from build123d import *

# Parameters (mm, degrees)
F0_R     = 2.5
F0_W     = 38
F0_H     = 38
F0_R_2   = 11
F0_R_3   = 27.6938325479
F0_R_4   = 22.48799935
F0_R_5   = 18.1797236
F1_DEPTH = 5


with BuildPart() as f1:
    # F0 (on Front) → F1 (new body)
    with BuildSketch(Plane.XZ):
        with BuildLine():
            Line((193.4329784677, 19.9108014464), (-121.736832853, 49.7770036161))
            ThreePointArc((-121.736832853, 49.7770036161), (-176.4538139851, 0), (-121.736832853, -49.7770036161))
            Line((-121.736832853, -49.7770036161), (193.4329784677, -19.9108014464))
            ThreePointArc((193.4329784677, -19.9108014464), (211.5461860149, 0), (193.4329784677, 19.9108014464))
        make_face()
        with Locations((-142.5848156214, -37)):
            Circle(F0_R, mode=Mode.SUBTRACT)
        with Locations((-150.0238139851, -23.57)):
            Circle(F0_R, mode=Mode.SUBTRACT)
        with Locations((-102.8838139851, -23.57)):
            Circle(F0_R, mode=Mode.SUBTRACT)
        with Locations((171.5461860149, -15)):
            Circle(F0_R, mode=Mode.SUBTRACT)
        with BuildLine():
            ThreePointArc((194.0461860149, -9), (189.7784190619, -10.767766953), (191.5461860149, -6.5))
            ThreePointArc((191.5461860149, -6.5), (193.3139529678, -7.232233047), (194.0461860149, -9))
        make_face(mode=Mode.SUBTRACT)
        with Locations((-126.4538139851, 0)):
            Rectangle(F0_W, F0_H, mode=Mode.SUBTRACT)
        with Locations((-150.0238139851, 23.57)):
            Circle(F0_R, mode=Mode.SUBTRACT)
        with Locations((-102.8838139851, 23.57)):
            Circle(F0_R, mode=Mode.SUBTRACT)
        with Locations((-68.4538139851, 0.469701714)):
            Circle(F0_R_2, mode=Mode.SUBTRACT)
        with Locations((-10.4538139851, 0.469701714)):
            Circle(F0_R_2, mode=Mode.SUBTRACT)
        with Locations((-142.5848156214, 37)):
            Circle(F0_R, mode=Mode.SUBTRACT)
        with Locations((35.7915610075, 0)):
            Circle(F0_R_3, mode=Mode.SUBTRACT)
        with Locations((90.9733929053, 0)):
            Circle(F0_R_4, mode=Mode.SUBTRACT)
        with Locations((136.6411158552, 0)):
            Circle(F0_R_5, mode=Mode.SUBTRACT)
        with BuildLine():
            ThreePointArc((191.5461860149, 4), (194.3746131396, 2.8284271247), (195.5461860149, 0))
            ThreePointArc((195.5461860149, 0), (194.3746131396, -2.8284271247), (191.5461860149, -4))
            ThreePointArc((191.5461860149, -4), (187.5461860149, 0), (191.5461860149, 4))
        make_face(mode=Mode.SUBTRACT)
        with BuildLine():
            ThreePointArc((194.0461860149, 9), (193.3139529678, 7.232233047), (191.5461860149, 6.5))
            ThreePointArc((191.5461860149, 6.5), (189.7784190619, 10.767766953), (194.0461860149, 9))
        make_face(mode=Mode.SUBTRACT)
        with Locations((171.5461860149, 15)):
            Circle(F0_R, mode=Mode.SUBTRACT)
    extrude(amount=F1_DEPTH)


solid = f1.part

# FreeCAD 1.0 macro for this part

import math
import FreeCAD as App
import Part
import Sketcher
Q = App.Units.Quantity


def add_polygon(sketch, points):
    """Adds a closed chain of lines whose ends are joined by coincident constraints."""
    first, n = sketch.GeometryCount, len(points)
    for a, b in zip(points, points[1:] + points[:1]):
        sketch.addGeometry(Part.LineSegment(App.Vector(*a, 0), App.Vector(*b, 0)), False)
    for i in range(n):
        sketch.addConstraint(Sketcher.Constraint("Coincident", first + i, 2, first + (i + 1) % n, 1))

doc = App.newDocument("Part")
body = doc.addObject("PartDesign::Body", "Body")

# Sketch on XZ plane
sketch1 = body.newObject("Sketcher::SketchObject", "Sketch")
sketch1.AttachmentSupport = (doc.getObject("XZ_Plane"), [""])
sketch1.MapMode = "FlatFace"
sketch1.addGeometry(Part.LineSegment(App.Vector(193.432978, 19.910801, 0), App.Vector(-121.736833, 49.777004, 0)), False)  # 0
sketch1.addGeometry(Part.ArcOfCircle(Part.Circle(App.Vector(-126.453814, 0, 0), App.Vector(0, 0, 1), 50), math.radians(84.586688), math.radians(275.413312)), False)  # 1
sketch1.addGeometry(Part.LineSegment(App.Vector(-121.736833, -49.777004, 0), App.Vector(193.432978, -19.910801, 0)), False)  # 2
sketch1.addGeometry(Part.ArcOfCircle(Part.Circle(App.Vector(191.546186, 0, 0), App.Vector(0, 0, 1), 20), math.radians(-84.586688), math.radians(84.586688)), False)  # 3
sketch1.addGeometry(Part.Circle(App.Vector(-142.584816, -37, 0), App.Vector(0, 0, 1), 2.5), False)  # 4
sketch1.addGeometry(Part.Circle(App.Vector(-150.023814, -23.57, 0), App.Vector(0, 0, 1), 2.5), False)  # 5
sketch1.addGeometry(Part.Circle(App.Vector(-102.883814, -23.57, 0), App.Vector(0, 0, 1), 2.5), False)  # 6
sketch1.addGeometry(Part.Circle(App.Vector(171.546186, -15, 0), App.Vector(0, 0, 1), 2.5), False)  # 7
sketch1.addGeometry(Part.ArcOfCircle(Part.Circle(App.Vector(191.546186, -9, 0), App.Vector(0, 0, 1), 2.5), math.radians(0), math.radians(90)), False)  # 8
sketch1.addGeometry(Part.ArcOfCircle(Part.Circle(App.Vector(191.546186, -9, 0), App.Vector(0, 0, 1), 2.5), math.radians(90), math.radians(360)), False)  # 9
sketch1.addGeometry(Part.ArcOfCircle(Part.Circle(App.Vector(191.546186, 0, 0), App.Vector(0, 0, 1), 4), math.radians(90), math.radians(270)), False)  # 10
sketch1.addGeometry(Part.ArcOfCircle(Part.Circle(App.Vector(191.546186, 0, 0), App.Vector(0, 0, 1), 4), math.radians(0), math.radians(90)), False)  # 11
sketch1.addGeometry(Part.ArcOfCircle(Part.Circle(App.Vector(191.546186, 0, 0), App.Vector(0, 0, 1), 4), math.radians(-90), math.radians(0)), False)  # 12
add_polygon(sketch1, [(-107.453814, -19), (-145.453814, -19), (-145.453814, 19), (-107.453814, 19)])  # lines 13-16
sketch1.addGeometry(Part.Circle(App.Vector(-68.453814, 0.469702, 0), App.Vector(0, 0, 1), 11), False)  # 17
sketch1.addGeometry(Part.Circle(App.Vector(-10.453814, 0.469702, 0), App.Vector(0, 0, 1), 11), False)  # 18
sketch1.addGeometry(Part.Circle(App.Vector(-150.023814, 23.57, 0), App.Vector(0, 0, 1), 2.5), False)  # 19
sketch1.addGeometry(Part.Circle(App.Vector(-102.883814, 23.57, 0), App.Vector(0, 0, 1), 2.5), False)  # 20
sketch1.addGeometry(Part.Circle(App.Vector(-142.584816, 37, 0), App.Vector(0, 0, 1), 2.5), False)  # 21
sketch1.addGeometry(Part.Circle(App.Vector(35.791561, 0, 0), App.Vector(0, 0, 1), 27.693833), False)  # 22
sketch1.addGeometry(Part.Circle(App.Vector(90.973393, 0, 0), App.Vector(0, 0, 1), 22.487999), False)  # 23
sketch1.addGeometry(Part.Circle(App.Vector(136.641116, 0, 0), App.Vector(0, 0, 1), 18.179724), False)  # 24
sketch1.addGeometry(Part.ArcOfCircle(Part.Circle(App.Vector(191.546186, 9, 0), App.Vector(0, 0, 1), 2.5), math.radians(0), math.radians(270)), False)  # 25
sketch1.addGeometry(Part.ArcOfCircle(Part.Circle(App.Vector(191.546186, 9, 0), App.Vector(0, 0, 1), 2.5), math.radians(-90), math.radians(0)), False)  # 26
sketch1.addGeometry(Part.Circle(App.Vector(171.546186, 15, 0), App.Vector(0, 0, 1), 2.5), False)  # 27
sketch1.addConstraint([
    Sketcher.Constraint("Tangent", 0, 2, 1, 1),
    Sketcher.Constraint("Tangent", 1, 2, 2, 1),
    Sketcher.Constraint("Tangent", 2, 2, 3, 1),
    Sketcher.Constraint("Tangent", 3, 2, 0, 1),
    Sketcher.Constraint("Tangent", 8, 1, 9, 2),
    Sketcher.Constraint("Coincident", 9, 1, 8, 2),
    Sketcher.Constraint("Tangent", 10, 1, 11, 2),
    Sketcher.Constraint("Tangent", 11, 1, 12, 2),
    Sketcher.Constraint("Tangent", 12, 1, 10, 2),
    Sketcher.Constraint("Tangent", 25, 1, 26, 2),
    Sketcher.Constraint("Coincident", 26, 1, 25, 2),
    Sketcher.Constraint("Horizontal", 13),
    Sketcher.Constraint("Vertical", 14),
    Sketcher.Constraint("Horizontal", 15),
    Sketcher.Constraint("Vertical", 16),
    Sketcher.Constraint("Coincident", 10, 3, 3, 3),
    Sketcher.Constraint("Equal", 4, 5),
    Sketcher.Constraint("Equal", 5, 6),
    Sketcher.Constraint("Equal", 6, 7),
    Sketcher.Constraint("Equal", 7, 8),
    Sketcher.Constraint("Equal", 17, 18),
    Sketcher.Constraint("Equal", 9, 19),
    Sketcher.Constraint("Equal", 19, 20),
    Sketcher.Constraint("Equal", 20, 21),
    Sketcher.Constraint("Equal", 21, 25),
    Sketcher.Constraint("Equal", 26, 27),
    Sketcher.Constraint("Symmetric", 5, 3, 19, 3, -1),
    Sketcher.Constraint("Symmetric", 6, 3, 20, 3, -1),
    Sketcher.Constraint("Symmetric", 4, 3, 21, 3, -1),
    Sketcher.Constraint("Symmetric", 8, 3, 25, 3, -1),
    Sketcher.Constraint("Symmetric", 7, 3, 27, 3, -1),
    Sketcher.Constraint("Symmetric", 0, 2, 1, 2, -1),
    Sketcher.Constraint("PointOnObject", 22, 3, -1),
    Sketcher.Constraint("PointOnObject", 23, 3, -1),
    Sketcher.Constraint("PointOnObject", 24, 3, -1),
    Sketcher.Constraint("PointOnObject", 11, 1, -1),
    Sketcher.Constraint("Horizontal", 5, 3, 6, 3),
    Sketcher.Constraint("Horizontal", 17, 3, 18, 3),
    Sketcher.Constraint("Horizontal", 9, 3, 8, 1),
    Sketcher.Constraint("Horizontal", 26, 3, 25, 1),
    Sketcher.Constraint("Vertical", 3, 3, 8, 3),
    Sketcher.Constraint("Vertical", 26, 3, 9, 1),
    Sketcher.Constraint("Vertical", 9, 1, 10, 1),
    Sketcher.Constraint("Vertical", 10, 1, 12, 1),
    Sketcher.Constraint("Vertical", 12, 1, 26, 1),
    Sketcher.Constraint("Equal", 15, 14),
    Sketcher.Constraint("Diameter", 4, Q("5 mm")),
    Sketcher.Constraint("Diameter", 17, Q("22 mm")),
    Sketcher.Constraint("Radius", 1, Q("50 mm")),
    Sketcher.Constraint("Radius", 3, Q("20 mm")),
    Sketcher.Constraint("Radius", 10, Q("4 mm")),
    Sketcher.Constraint("DistanceX", 13, 2, 13, 1, Q("38 mm")),
    Sketcher.Constraint("Diameter", 23, Q("44.975999 mm")),
    Sketcher.Constraint("DistanceY", 4, 3, -1, 1, Q("37 mm")),
    Sketcher.Constraint("DistanceY", 7, 3, -1, 1, Q("15 mm")),
    Sketcher.Constraint("DistanceY", 8, 3, -1, 1, Q("9 mm")),
    Sketcher.Constraint("DistanceY", 13, 2, -1, 1, Q("19 mm")),
    Sketcher.Constraint("DistanceX", 1, 3, 3, 3, Q("318 mm")),
    Sketcher.Constraint("DistanceX", 7, 3, 3, 3, Q("20 mm")),
    Sketcher.Constraint("DistanceX", 1, 3, 17, 3, Q("58 mm")),
    Sketcher.Constraint("DistanceX", 17, 3, 18, 3, Q("58 mm")),
    Sketcher.Constraint("DistanceX", 13, 2, 1, 3, Q("19 mm")),
    Sketcher.Constraint("DistanceY", 5, 3, -1, 1, Q("23.57 mm")),
    Sketcher.Constraint("DistanceX", 5, 3, 1, 3, Q("23.57 mm")),
    Sketcher.Constraint("DistanceX", 1, 3, 6, 3, Q("23.57 mm")),
    Sketcher.Constraint("Diameter", 22, Q("55.387665 mm")),
    Sketcher.Constraint("Diameter", 24, Q("36.359447 mm")),
    Sketcher.Constraint("DistanceX", 4, 3, 1, 3, Q("16.131002 mm")),
    Sketcher.Constraint("DistanceY", -1, 1, 17, 3, Q("0.469702 mm")),
    Sketcher.Constraint("DistanceX", -1, 1, 22, 3, Q("35.791561 mm")),
    Sketcher.Constraint("DistanceX", -1, 1, 2, 2, Q("193.432978 mm")),
    Sketcher.Constraint("DistanceX", 22, 3, 23, 3, Q("55.181832 mm")),
    Sketcher.Constraint("DistanceX", 24, 3, 7, 3, Q("34.90507 mm")),
])
pad1 = body.newObject("PartDesign::Pad", "Pad")
pad1.Profile = sketch1
pad1.Length = 5

doc.recompute()
